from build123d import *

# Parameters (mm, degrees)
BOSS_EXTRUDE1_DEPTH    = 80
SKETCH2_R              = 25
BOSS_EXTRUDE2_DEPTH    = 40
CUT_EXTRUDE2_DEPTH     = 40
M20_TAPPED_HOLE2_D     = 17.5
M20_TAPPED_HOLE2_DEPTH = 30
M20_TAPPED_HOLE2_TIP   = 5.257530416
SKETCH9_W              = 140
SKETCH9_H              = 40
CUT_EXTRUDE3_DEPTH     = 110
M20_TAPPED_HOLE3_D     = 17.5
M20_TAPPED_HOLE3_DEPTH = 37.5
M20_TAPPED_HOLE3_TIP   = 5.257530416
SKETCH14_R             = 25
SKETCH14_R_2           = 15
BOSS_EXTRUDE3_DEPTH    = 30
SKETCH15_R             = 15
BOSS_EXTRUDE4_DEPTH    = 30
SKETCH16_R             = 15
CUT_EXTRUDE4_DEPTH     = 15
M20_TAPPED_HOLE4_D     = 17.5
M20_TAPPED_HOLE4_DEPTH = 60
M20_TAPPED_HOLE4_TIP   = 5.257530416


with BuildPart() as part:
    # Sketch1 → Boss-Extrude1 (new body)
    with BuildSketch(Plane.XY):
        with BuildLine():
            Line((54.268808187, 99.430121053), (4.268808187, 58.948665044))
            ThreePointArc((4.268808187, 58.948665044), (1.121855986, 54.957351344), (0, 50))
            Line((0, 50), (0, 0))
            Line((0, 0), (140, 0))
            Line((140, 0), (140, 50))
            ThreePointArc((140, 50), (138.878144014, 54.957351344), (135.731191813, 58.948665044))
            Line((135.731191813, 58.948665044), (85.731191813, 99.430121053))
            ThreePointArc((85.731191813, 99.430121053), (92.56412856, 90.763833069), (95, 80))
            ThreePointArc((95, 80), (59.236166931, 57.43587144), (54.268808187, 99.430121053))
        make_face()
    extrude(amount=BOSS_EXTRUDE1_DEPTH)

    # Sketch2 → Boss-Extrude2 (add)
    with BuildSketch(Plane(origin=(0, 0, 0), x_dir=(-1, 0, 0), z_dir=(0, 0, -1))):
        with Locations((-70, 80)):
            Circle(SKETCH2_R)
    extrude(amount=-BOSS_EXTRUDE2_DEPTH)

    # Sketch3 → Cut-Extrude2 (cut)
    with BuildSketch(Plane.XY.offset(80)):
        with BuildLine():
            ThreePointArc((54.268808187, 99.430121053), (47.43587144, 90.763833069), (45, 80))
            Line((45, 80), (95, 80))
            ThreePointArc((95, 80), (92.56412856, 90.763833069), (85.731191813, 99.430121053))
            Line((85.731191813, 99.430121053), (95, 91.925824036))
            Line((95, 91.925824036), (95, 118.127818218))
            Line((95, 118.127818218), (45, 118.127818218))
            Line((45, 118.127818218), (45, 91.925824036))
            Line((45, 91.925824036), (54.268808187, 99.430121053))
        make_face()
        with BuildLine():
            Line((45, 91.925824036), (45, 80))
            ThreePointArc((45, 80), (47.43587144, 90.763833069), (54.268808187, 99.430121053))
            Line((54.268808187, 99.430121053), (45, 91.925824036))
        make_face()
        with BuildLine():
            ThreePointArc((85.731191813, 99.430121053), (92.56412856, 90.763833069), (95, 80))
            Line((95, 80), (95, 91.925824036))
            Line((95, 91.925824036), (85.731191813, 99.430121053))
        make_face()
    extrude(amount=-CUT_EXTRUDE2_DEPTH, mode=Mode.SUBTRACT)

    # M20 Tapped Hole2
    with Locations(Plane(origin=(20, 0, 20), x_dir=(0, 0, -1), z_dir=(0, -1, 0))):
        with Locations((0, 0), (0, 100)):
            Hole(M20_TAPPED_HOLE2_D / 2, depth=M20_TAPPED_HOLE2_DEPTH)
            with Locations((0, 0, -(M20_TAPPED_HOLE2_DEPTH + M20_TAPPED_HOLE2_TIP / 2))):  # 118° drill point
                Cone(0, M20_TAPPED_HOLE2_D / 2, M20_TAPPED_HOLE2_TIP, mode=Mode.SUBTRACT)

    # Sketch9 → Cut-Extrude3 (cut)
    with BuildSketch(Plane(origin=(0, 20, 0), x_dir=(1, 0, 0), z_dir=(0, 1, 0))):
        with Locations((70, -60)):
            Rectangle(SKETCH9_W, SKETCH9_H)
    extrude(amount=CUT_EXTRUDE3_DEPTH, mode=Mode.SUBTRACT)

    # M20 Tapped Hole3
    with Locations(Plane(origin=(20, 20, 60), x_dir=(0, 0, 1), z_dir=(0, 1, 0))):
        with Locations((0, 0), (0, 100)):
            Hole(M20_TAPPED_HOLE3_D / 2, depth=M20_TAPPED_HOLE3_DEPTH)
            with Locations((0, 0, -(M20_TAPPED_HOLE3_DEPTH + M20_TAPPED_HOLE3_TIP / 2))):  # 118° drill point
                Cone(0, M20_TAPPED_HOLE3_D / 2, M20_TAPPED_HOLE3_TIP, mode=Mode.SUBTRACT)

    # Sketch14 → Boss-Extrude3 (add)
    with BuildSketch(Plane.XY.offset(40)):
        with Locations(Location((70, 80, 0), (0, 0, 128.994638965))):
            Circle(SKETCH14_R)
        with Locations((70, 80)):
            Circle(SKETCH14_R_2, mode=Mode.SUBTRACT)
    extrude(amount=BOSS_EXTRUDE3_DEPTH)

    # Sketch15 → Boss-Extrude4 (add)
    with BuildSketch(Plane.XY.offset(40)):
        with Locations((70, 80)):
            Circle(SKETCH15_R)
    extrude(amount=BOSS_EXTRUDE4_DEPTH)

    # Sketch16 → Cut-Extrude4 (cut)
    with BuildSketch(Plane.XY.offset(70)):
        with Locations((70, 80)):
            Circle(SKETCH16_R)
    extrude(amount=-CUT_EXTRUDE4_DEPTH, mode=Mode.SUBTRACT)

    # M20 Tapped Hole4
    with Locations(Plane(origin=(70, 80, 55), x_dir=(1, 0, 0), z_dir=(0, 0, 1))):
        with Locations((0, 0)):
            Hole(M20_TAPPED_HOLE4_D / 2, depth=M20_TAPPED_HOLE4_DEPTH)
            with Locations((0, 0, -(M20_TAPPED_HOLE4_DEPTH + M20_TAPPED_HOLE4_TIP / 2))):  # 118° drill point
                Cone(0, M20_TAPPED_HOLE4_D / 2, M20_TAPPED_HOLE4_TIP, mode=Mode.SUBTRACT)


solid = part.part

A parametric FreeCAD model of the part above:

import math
import FreeCAD as App
import Part
import Sketcher

V = App.Vector
Q = App.Units.Quantity


def add_polygon(sketch, points):
    """Adds a closed chain of lines whose ends are joined by coincident constraints."""
    first, n = sketch.GeometryCount, len(points)
    for a, b in zip(points, points[1:] + points[:1]):
        sketch.addGeometry(Part.LineSegment(App.Vector(*a, 0), App.Vector(*b, 0)), False)
    for i in range(n):
        sketch.addConstraint(Sketcher.Constraint("Coincident", first + i, 2, first + (i + 1) % n, 1))

doc = App.newDocument("Part")
body = doc.addObject("PartDesign::Body", "Body")

sketch1 = doc.addObject("Sketcher::SketchObject", "Sketch")
body.addObject(sketch1)
sketch1.AttachmentSupport = (doc.XY_Plane, [""])
sketch1.MapMode = "FlatFace"
sketch1.addGeometry(Part.LineSegment(V(54, 99, 0), V(4, 59, 0)), False)
sketch1.addGeometry(Part.ArcOfCircle(Part.Circle(V(12, 50, 0), V(0, 0, 1), 12), math.radians(129), math.radians(180)), False)
sketch1.addGeometry(Part.LineSegment(V(0, 50, 0), V(0, 0, 0)), False)
sketch1.addGeometry(Part.LineSegment(V(0, 0, 0), V(140, 0, 0)), False)
sketch1.addGeometry(Part.LineSegment(V(140, 0, 0), V(140, 50, 0)), False)
sketch1.addGeometry(Part.ArcOfCircle(Part.Circle(V(128, 50, 0), V(0, 0, 1), 12), math.radians(0), math.radians(51)), False)
sketch1.addGeometry(Part.LineSegment(V(136, 59, 0), V(86, 99, 0)), False)
sketch1.addGeometry(Part.ArcOfCircle(Part.Circle(V(70, 80, 0), V(0, 0, 1), 25), math.radians(0), math.radians(51)), False)
sketch1.addGeometry(Part.ArcOfCircle(Part.Circle(V(70, 80, 0), V(0, 0, 1), 25), math.radians(129), math.radians(360)), False)
sketch1.addConstraint(Sketcher.Constraint("Tangent", 0, 2, 1, 1))
sketch1.addConstraint(Sketcher.Constraint("Tangent", 1, 2, 2, 1))
sketch1.addConstraint(Sketcher.Constraint("Coincident", 2, 2, 3, 1))
sketch1.addConstraint(Sketcher.Constraint("Coincident", 3, 2, 4, 1))
sketch1.addConstraint(Sketcher.Constraint("Tangent", 4, 2, 5, 1))
sketch1.addConstraint(Sketcher.Constraint("Tangent", 5, 2, 6, 1))
sketch1.addConstraint(Sketcher.Constraint("Tangent", 6, 2, 7, 2))
sketch1.addConstraint(Sketcher.Constraint("Tangent", 7, 1, 8, 2))
sketch1.addConstraint(Sketcher.Constraint("Tangent", 8, 1, 0, 1))
sketch1.addConstraint(Sketcher.Constraint("Vertical", 2))
sketch1.addConstraint(Sketcher.Constraint("Horizontal", 3))
sketch1.addConstraint(Sketcher.Constraint("Vertical", 4))
sketch1.addConstraint(Sketcher.Constraint("Coincident", 2, 2, -1, 1))
sketch1.addConstraint(Sketcher.Constraint("Equal", 1, 5))
sketch1.addConstraint(Sketcher.Constraint("Equal", 7, 8))
sketch1.addConstraint(Sketcher.Constraint("Horizontal", 1, 3, 5, 3))
sketch1.addConstraint(Sketcher.Constraint("Horizontal", 0, 2, 5, 2))
sketch1.addConstraint(Sketcher.Constraint("Horizontal", 8, 3, 7, 1))
sketch1.addConstraint(Sketcher.Constraint("Radius", 7, Q("25 mm")))
sketch1.addConstraint(Sketcher.Constraint("DistanceX", 3, 1, 3, 2, Q("140 mm")))
sketch1.addConstraint(Sketcher.Constraint("DistanceY", 2, 2, 2, 1, Q("50 mm")))
sketch1.addConstraint(Sketcher.Constraint("DistanceY", -1, 1, 7, 3, Q("80 mm")))
sketch1.addConstraint(Sketcher.Constraint("DistanceX", 6, 2, 5, 2, Q("50 mm")))
pad1 = doc.addObject("PartDesign::Pad", "Pad")
body.addObject(pad1)
pad1.Profile = sketch1
pad1.Length = 80

sketch2 = doc.addObject("Sketcher::SketchObject", "Sketch001")
body.addObject(sketch2)
sketch2.AttachmentSupport = (doc.XY_Plane, [""])
sketch2.MapMode = "FlatFace"
sketch2.addGeometry(Part.Circle(V(70, 80, 0), V(0, 0, 1), 25), False)
sketch2.addConstraint(Sketcher.Constraint("Diameter", 0, Q("50 mm")))
sketch2.addConstraint(Sketcher.Constraint("DistanceX", -1, 1, 0, 3, Q("70 mm")))
sketch2.addConstraint(Sketcher.Constraint("DistanceY", -1, 1, 0, 3, Q("80 mm")))
pad2 = doc.addObject("PartDesign::Pad", "Pad001")
body.addObject(pad2)
pad2.Profile = sketch2
pad2.Length = 40

sketch3 = doc.addObject("Sketcher::SketchObject", "Sketch002")
body.addObject(sketch3)
sketch3.AttachmentSupport = (doc.XY_Plane, [""])
sketch3.MapMode = "FlatFace"
sketch3.AttachmentOffset = App.Placement(V(0, 0, 80), App.Rotation())
add_polygon(sketch3, [(45, 80), (95, 80), (95, 118), (45, 118)])
sketch3.addConstraint(Sketcher.Constraint("Horizontal", 0))
sketch3.addConstraint(Sketcher.Constraint("Vertical", 1))
sketch3.addConstraint(Sketcher.Constraint("Horizontal", 2))
sketch3.addConstraint(Sketcher.Constraint("Vertical", 3))
sketch3.addConstraint(Sketcher.Constraint("DistanceX", 0, 1, 0, 2, Q("50 mm")))
sketch3.addConstraint(Sketcher.Constraint("DistanceX", -1, 1, 0, 2, Q("95 mm")))
sketch3.addConstraint(Sketcher.Constraint("DistanceY", -1, 1, 0, 2, Q("80 mm")))
sketch3.addConstraint(Sketcher.Constraint("DistanceY", 1, 1, 1, 2, Q("38.127818 mm")))
pocket1 = doc.addObject("PartDesign::Pocket", "Pocket")
body.addObject(pocket1)
pocket1.Profile = sketch3
pocket1.Length = 40

sketch4 = doc.addObject("Sketcher::SketchObject", "Sketch003")
body.addObject(sketch4)
sketch4.AttachmentSupport = (doc.XZ_Plane, [""])
sketch4.MapMode = "FlatFace"
sketch4.addGeometry(Part.Circle(V(20, 20, 0), V(0, 0, 1), 9), False)
sketch4.addGeometry(Part.Circle(V(120, 20, 0), V(0, 0, 1), 9), False)
sketch4.addConstraint(Sketcher.Constraint("Equal", 0, 1))
sketch4.addConstraint(Sketcher.Constraint("Horizontal", 0, 3, 1, 3))
sketch4.addConstraint(Sketcher.Constraint("Diameter", 0, Q("17.5 mm")))
sketch4.addConstraint(Sketcher.Constraint("DistanceX", -1, 1, 0, 3, Q("20 mm")))
sketch4.addConstraint(Sketcher.Constraint("DistanceY", -1, 1, 0, 3, Q("20 mm")))
sketch4.addConstraint(Sketcher.Constraint("DistanceX", -1, 1, 1, 3, Q("120 mm")))
doc.recompute()
hole = doc.addObject("PartDesign::Hole", "Hole")
body.addObject(hole)
hole.Profile = sketch4
hole.ThreadType = "None"
hole.Diameter = 17.5
hole.DepthType = "Dimension"
hole.Depth = 30
hole.DrillPoint = "Angled"
hole.DrillPointAngle = 118

sketch5 = doc.addObject("Sketcher::SketchObject", "Sketch004")
body.addObject(sketch5)
sketch5.AttachmentSupport = (doc.XZ_Plane, [""])
sketch5.MapMode = "FlatFace"
sketch5.AttachmentOffset = App.Placement(V(0, 0, -20), App.Rotation())
add_polygon(sketch5, [(0, 40), (0, 80), (140, 80), (140, 40)])
sketch5.addConstraint(Sketcher.Constraint("Vertical", 0))
sketch5.addConstraint(Sketcher.Constraint("Horizontal", 1))
sketch5.addConstraint(Sketcher.Constraint("Vertical", 2))
sketch5.addConstraint(Sketcher.Constraint("Horizontal", 3))
sketch5.addConstraint(Sketcher.Constraint("PointOnObject", 0, 2, -2))
sketch5.addConstraint(Sketcher.Constraint("DistanceX", 1, 1, 1, 2, Q("140 mm")))
sketch5.addConstraint(Sketcher.Constraint("DistanceY", 0, 1, 0, 2, Q("40 mm")))
sketch5.addConstraint(Sketcher.Constraint("DistanceY", -1, 1, 0, 2, Q("80 mm")))
pocket2 = doc.addObject("PartDesign::Pocket", "Pocket001")
body.addObject(pocket2)
pocket2.Profile = sketch5
pocket2.Length = 110

sketch6 = doc.addObject("Sketcher::SketchObject", "Sketch005")
body.addObject(sketch6)
sketch6.AttachmentSupport = (doc.XZ_Plane, [""])
sketch6.MapMode = "FlatFace"
sketch6.AttachmentOffset = App.Placement(V(0, 0, -20), App.Rotation())
sketch6.addGeometry(Part.Circle(V(20, 60, 0), V(0, 0, 1), 9), False)
sketch6.addGeometry(Part.Circle(V(120, 60, 0), V(0, 0, 1), 9), False)
sketch6.addConstraint(Sketcher.Constraint("Equal", 0, 1))
sketch6.addConstraint(Sketcher.Constraint("Horizontal", 0, 3, 1, 3))
sketch6.addConstraint(Sketcher.Constraint("Diameter", 0, Q("17.5 mm")))
sketch6.addConstraint(Sketcher.Constraint("DistanceX", -1, 1, 0, 3, Q("20 mm")))
sketch6.addConstraint(Sketcher.Constraint("DistanceY", -1, 1, 0, 3, Q("60 mm")))
sketch6.addConstraint(Sketcher.Constraint("DistanceX", -1, 1, 1, 3, Q("120 mm")))
doc.recompute()
hole2 = doc.addObject("PartDesign::Hole", "Hole001")
body.addObject(hole2)
hole2.Profile = sketch6
hole2.ThreadType = "None"
hole2.Diameter = 17.5
hole2.DepthType = "Dimension"
hole2.Depth = 37.5
hole2.DrillPoint = "Angled"
hole2.DrillPointAngle = 118
hole2.Reversed = True

sketch7 = doc.addObject("Sketcher::SketchObject", "Sketch006")
body.addObject(sketch7)
sketch7.AttachmentSupport = (doc.XY_Plane, [""])
sketch7.MapMode = "FlatFace"
sketch7.AttachmentOffset = App.Placement(V(0, 0, 40), App.Rotation())
sketch7.addGeometry(Part.Circle(V(70, 80, 0), V(0, 0, 1), 25), False)
sketch7.addGeometry(Part.Circle(V(70, 80, 0), V(0, 0, 1), 15), False)
sketch7.addConstraint(Sketcher.Constraint("Coincident", 1, 3, 0, 3))
sketch7.addConstraint(Sketcher.Constraint("Diameter", 0, Q("50 mm")))
sketch7.addConstraint(Sketcher.Constraint("Diameter", 1, Q("30 mm")))
sketch7.addConstraint(Sketcher.Constraint("DistanceX", -1, 1, 0, 3, Q("70 mm")))
sketch7.addConstraint(Sketcher.Constraint("DistanceY", -1, 1, 0, 3, Q("80 mm")))
pad3 = doc.addObject("PartDesign::Pad", "Pad002")
body.addObject(pad3)
pad3.Profile = sketch7
pad3.Length = 30

sketch8 = doc.addObject("Sketcher::SketchObject", "Sketch007")
body.addObject(sketch8)
sketch8.AttachmentSupport = (doc.XY_Plane, [""])
sketch8.MapMode = "FlatFace"
sketch8.AttachmentOffset = App.Placement(V(0, 0, 40), App.Rotation())
sketch8.addGeometry(Part.Circle(V(70, 80, 0), V(0, 0, 1), 15), False)
sketch8.addConstraint(Sketcher.Constraint("Diameter", 0, Q("30 mm")))
sketch8.addConstraint(Sketcher.Constraint("DistanceX", -1, 1, 0, 3, Q("70 mm")))
sketch8.addConstraint(Sketcher.Constraint("DistanceY", -1, 1, 0, 3, Q("80 mm")))
pad4 = doc.addObject("PartDesign::Pad", "Pad003")
body.addObject(pad4)
pad4.Profile = sketch8
pad4.Length = 30

sketch9 = doc.addObject("Sketcher::SketchObject", "Sketch008")
body.addObject(sketch9)
sketch9.AttachmentSupport = (doc.XY_Plane, [""])
sketch9.MapMode = "FlatFace"
sketch9.AttachmentOffset = App.Placement(V(0, 0, 70), App.Rotation())
sketch9.addGeometry(Part.Circle(V(70, 80, 0), V(0, 0, 1), 15), False)
sketch9.addConstraint(Sketcher.Constraint("Diameter", 0, Q("30 mm")))
sketch9.addConstraint(Sketcher.Constraint("DistanceX", -1, 1, 0, 3, Q("70 mm")))
sketch9.addConstraint(Sketcher.Constraint("DistanceY", -1, 1, 0, 3, Q("80 mm")))
pocket3 = doc.addObject("PartDesign::Pocket", "Pocket002")
body.addObject(pocket3)
pocket3.Profile = sketch9
pocket3.Length = 15

sketch10 = doc.addObject("Sketcher::SketchObject", "Sketch009")
body.addObject(sketch10)
sketch10.AttachmentSupport = (doc.XY_Plane, [""])
sketch10.MapMode = "FlatFace"
sketch10.AttachmentOffset = App.Placement(V(0, 0, 55), App.Rotation())
sketch10.addGeometry(Part.Circle(V(70, 80, 0), V(0, 0, 1), 9), False)
sketch10.addConstraint(Sketcher.Constraint("Diameter", 0, Q("17.5 mm")))
sketch10.addConstraint(Sketcher.Constraint("DistanceX", -1, 1, 0, 3, Q("70 mm")))
sketch10.addConstraint(Sketcher.Constraint("DistanceY", -1, 1, 0, 3, Q("80 mm")))
doc.recompute()
hole3 = doc.addObject("PartDesign::Hole", "Hole002")
body.addObject(hole3)
hole3.Profile = sketch10
hole3.ThreadType = "None"
hole3.Diameter = 17.5
hole3.DepthType = "Dimension"
hole3.Depth = 60
hole3.DrillPoint = "Angled"
hole3.DrillPointAngle = 118

doc.recompute()
